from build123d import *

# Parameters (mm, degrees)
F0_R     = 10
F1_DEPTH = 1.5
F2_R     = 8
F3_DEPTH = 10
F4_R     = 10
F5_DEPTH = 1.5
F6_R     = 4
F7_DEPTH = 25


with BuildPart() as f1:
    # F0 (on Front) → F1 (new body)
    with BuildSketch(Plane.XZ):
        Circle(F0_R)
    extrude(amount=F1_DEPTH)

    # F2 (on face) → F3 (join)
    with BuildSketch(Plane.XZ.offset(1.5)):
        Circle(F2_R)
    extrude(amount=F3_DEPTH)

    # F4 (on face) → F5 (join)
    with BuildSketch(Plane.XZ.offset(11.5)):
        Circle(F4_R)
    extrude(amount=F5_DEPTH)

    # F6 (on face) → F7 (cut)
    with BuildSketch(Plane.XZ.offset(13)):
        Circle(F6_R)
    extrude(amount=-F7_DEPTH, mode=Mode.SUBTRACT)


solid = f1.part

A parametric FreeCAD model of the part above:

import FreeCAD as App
import Part
import Sketcher

doc = App.newDocument("Part")
body = doc.addObject("PartDesign::Body", "Body")

sketch1 = body.newObject("Sketcher::SketchObject", "Sketch")
sketch1.AttachmentSupport = (doc.getObject("XZ_Plane"), [""])
sketch1.MapMode = "FlatFace"
sketch1.addGeometry(Part.Circle(App.Vector(0, 0, 0), App.Vector(0, 0, 1), 10), False)
sketch1.addConstraint(Sketcher.Constraint("Coincident", 0, 3, -1, 1))
sketch1.addConstraint(Sketcher.Constraint("Diameter", 0, 20.0))
pad1 = body.newObject("PartDesign::Pad", "Pad")
pad1.Profile = sketch1
pad1.Length = 1.5

sketch2 = body.newObject("Sketcher::SketchObject", "Sketch001")
sketch2.AttachmentSupport = (doc.getObject("XZ_Plane"), [""])
sketch2.MapMode = "FlatFace"
sketch2.AttachmentOffset = App.Placement(App.Vector(0, 0, 1.5), App.Rotation())
sketch2.addGeometry(Part.Circle(App.Vector(0, 0, 0), App.Vector(0, 0, 1), 8), False)
sketch2.addConstraint(Sketcher.Constraint("Coincident", 0, 3, -1, 1))
sketch2.addConstraint(Sketcher.Constraint("Diameter", 0, 16.0))
pad2 = body.newObject("PartDesign::Pad", "Pad001")
pad2.Profile = sketch2
pad2.Length = 10

sketch3 = body.newObject("Sketcher::SketchObject", "Sketch002")
sketch3.AttachmentSupport = (doc.getObject("XZ_Plane"), [""])
sketch3.MapMode = "FlatFace"
sketch3.AttachmentOffset = App.Placement(App.Vector(0, 0, 11.5), App.Rotation())
sketch3.addGeometry(Part.Circle(App.Vector(0, 0, 0), App.Vector(0, 0, 1), 10), False)
sketch3.addConstraint(Sketcher.Constraint("Coincident", 0, 3, -1, 1))
sketch3.addConstraint(Sketcher.Constraint("Diameter", 0, 20.0))
pad3 = body.newObject("PartDesign::Pad", "Pad002")
pad3.Profile = sketch3
pad3.Length = 1.5

sketch4 = body.newObject("Sketcher::SketchObject", "Sketch003")
sketch4.AttachmentSupport = (doc.getObject("XZ_Plane"), [""])
sketch4.MapMode = "FlatFace"
sketch4.AttachmentOffset = App.Placement(App.Vector(0, 0, 13), App.Rotation())
sketch4.addGeometry(Part.Circle(App.Vector(0, 0, 0), App.Vector(0, 0, 1), 4), False)
sketch4.addConstraint(Sketcher.Constraint("Coincident", 0, 3, -1, 1))
sketch4.addConstraint(Sketcher.Constraint("Diameter", 0, 8.0))
pocket1 = body.newObject("PartDesign::Pocket", "Pocket")
pocket1.Profile = sketch4
pocket1.Length = 25

doc.recompute()
